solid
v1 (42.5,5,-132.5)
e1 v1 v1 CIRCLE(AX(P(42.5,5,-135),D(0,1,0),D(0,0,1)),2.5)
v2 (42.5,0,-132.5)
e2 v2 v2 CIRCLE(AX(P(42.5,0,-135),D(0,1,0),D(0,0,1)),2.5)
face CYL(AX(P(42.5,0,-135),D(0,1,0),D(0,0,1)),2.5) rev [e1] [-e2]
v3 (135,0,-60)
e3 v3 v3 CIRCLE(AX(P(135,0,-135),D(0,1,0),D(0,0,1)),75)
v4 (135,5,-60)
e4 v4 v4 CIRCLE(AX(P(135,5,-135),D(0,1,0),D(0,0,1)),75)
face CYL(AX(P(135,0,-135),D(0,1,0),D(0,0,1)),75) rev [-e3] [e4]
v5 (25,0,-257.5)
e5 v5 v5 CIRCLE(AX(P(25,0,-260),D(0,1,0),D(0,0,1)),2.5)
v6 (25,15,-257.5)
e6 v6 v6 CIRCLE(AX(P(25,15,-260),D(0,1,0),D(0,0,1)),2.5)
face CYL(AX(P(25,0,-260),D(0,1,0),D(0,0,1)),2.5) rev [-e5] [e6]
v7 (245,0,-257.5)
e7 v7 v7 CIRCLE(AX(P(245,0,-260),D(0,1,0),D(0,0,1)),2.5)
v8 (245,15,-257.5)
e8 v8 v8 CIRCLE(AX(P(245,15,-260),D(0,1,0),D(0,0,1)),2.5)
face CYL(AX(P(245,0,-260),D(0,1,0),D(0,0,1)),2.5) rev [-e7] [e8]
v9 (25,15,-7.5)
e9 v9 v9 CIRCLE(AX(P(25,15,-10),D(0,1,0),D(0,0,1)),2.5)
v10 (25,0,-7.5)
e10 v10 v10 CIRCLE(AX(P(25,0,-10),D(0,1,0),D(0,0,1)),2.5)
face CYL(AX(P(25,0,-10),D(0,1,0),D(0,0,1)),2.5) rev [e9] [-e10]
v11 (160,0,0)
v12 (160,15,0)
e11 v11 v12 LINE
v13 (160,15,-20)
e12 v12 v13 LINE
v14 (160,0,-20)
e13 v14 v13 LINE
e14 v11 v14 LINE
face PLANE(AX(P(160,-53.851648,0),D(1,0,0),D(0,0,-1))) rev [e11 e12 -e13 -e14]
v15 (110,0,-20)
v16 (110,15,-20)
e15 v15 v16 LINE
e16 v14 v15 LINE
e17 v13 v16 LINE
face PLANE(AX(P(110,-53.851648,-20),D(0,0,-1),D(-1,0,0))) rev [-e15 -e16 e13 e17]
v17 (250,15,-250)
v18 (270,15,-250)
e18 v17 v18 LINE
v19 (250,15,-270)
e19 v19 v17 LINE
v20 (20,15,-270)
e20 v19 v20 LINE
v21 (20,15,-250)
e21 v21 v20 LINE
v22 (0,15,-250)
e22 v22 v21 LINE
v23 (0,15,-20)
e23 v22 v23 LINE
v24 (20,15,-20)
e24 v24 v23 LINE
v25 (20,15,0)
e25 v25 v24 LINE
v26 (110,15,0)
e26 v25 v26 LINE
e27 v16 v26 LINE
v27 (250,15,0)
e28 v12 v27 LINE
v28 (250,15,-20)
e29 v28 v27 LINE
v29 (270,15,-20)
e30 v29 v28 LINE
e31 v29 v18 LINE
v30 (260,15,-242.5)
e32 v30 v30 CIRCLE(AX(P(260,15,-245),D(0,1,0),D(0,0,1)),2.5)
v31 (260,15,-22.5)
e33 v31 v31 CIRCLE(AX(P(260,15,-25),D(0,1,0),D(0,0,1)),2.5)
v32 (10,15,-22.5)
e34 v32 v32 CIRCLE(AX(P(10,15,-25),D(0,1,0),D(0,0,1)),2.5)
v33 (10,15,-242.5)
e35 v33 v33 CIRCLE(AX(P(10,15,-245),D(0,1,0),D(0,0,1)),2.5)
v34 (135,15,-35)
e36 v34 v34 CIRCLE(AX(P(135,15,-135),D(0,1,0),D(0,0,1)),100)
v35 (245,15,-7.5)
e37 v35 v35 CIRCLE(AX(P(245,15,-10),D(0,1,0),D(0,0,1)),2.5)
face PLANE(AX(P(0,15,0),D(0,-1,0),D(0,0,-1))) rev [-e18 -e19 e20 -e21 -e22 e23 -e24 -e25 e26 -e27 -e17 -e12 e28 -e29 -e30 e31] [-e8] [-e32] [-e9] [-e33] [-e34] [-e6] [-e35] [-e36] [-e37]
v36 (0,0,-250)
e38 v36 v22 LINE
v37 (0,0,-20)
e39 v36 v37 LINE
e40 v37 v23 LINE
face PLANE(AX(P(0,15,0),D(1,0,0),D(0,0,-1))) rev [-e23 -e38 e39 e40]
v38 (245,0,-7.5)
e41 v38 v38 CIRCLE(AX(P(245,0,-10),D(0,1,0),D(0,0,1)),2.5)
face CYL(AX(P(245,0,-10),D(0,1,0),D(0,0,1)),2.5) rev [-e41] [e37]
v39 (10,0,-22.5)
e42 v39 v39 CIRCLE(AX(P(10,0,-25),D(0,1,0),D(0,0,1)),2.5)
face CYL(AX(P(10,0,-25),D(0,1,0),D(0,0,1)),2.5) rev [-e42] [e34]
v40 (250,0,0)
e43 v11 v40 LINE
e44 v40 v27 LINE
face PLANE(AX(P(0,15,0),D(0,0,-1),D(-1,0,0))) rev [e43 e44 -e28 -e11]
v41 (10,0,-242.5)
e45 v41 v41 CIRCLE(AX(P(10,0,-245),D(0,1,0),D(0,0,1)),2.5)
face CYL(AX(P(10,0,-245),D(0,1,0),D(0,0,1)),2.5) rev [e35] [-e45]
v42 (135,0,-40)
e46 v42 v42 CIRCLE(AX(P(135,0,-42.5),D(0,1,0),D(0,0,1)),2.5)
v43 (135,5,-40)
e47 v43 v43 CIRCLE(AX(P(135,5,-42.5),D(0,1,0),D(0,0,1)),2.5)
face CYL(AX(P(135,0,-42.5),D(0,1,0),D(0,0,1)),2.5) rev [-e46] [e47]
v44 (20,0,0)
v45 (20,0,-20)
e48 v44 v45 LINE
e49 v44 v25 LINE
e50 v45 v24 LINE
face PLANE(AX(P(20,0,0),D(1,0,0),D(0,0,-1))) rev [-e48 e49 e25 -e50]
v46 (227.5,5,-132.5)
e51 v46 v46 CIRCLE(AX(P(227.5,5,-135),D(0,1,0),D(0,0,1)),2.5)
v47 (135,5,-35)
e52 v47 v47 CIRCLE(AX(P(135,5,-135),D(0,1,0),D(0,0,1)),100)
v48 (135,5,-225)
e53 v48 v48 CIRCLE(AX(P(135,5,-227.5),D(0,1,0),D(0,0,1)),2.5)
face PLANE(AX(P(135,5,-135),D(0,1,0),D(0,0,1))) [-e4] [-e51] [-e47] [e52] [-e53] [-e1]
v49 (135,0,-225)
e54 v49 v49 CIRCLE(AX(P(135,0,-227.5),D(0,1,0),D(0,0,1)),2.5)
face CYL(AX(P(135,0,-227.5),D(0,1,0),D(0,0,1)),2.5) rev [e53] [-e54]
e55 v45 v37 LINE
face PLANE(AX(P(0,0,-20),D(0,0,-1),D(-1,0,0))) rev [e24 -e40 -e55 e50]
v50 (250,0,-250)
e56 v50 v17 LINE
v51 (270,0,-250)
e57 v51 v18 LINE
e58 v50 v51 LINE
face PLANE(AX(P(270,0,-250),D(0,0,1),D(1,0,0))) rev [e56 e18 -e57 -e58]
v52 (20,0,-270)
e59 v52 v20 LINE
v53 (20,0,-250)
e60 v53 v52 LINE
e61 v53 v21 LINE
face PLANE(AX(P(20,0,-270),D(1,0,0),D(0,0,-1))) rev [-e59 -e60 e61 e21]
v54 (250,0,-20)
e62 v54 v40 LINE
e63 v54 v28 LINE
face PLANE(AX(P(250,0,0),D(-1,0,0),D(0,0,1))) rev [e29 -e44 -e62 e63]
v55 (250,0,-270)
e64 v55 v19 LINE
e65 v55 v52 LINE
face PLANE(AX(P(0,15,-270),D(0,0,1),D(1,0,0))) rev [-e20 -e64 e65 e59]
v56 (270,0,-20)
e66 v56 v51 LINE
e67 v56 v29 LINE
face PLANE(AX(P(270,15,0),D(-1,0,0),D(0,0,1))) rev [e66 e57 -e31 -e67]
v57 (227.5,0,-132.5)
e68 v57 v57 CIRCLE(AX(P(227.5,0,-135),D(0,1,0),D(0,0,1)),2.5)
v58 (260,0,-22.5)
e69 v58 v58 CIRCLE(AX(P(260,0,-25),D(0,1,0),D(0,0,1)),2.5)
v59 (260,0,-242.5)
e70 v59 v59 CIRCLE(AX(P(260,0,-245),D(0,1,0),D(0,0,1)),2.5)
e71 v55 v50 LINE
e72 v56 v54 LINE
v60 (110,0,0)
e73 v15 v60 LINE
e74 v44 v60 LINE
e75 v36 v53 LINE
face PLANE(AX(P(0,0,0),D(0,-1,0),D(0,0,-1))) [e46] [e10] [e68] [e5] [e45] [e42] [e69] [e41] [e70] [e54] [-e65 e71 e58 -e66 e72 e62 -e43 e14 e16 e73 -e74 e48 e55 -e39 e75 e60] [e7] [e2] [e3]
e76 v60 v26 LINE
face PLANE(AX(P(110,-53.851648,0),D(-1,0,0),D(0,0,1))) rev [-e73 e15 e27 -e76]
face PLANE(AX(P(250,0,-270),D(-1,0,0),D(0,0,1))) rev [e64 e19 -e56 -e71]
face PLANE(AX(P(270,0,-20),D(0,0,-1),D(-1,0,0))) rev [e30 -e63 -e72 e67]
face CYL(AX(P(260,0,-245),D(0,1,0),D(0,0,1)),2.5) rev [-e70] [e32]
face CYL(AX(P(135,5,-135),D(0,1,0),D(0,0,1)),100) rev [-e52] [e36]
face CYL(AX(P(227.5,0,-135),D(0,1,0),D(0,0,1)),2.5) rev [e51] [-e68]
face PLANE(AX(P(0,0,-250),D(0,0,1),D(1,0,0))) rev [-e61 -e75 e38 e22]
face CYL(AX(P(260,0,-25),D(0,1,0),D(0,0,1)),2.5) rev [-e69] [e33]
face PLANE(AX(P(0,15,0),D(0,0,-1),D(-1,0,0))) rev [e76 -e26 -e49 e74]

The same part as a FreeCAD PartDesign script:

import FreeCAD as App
import Part
import Sketcher
Q = App.Units.Quantity

doc = App.newDocument("Part")
body = doc.addObject("PartDesign::Body", "Body")

# Sketch on XZ plane
sketch1 = doc.addObject("Sketcher::SketchObject", "Sketch")
body.addObject(sketch1)
sketch1.AttachmentSupport = (doc.XZ_Plane, [""])
sketch1.MapMode = "FlatFace"
sketch1.addGeometry(Part.LineSegment(App.Vector(0, -270, 0), App.Vector(0, 0, 0)), False)
sketch1.addGeometry(Part.LineSegment(App.Vector(0, 0, 0), App.Vector(270, 0, 0)), False)
sketch1.addGeometry(Part.LineSegment(App.Vector(270, 0, 0), App.Vector(270, -270, 0)), False)
sketch1.addGeometry(Part.LineSegment(App.Vector(270, -270, 0), App.Vector(0, -270, 0)), False)
sketch1.addConstraint(Sketcher.Constraint("Coincident", 0, 2, 1, 1))
sketch1.addConstraint(Sketcher.Constraint("Coincident", 1, 2, 2, 1))
sketch1.addConstraint(Sketcher.Constraint("Coincident", 2, 2, 3, 1))
sketch1.addConstraint(Sketcher.Constraint("Coincident", 3, 2, 0, 1))
sketch1.addConstraint(Sketcher.Constraint("Vertical", 0))
sketch1.addConstraint(Sketcher.Constraint("Horizontal", 1))
sketch1.addConstraint(Sketcher.Constraint("Vertical", 2))
sketch1.addConstraint(Sketcher.Constraint("Horizontal", 3))
sketch1.addConstraint(Sketcher.Constraint("Coincident", 0, 2, -1, 1))
sketch1.addConstraint(Sketcher.Constraint("Equal", 3, 0))
sketch1.addConstraint(Sketcher.Constraint("DistanceX", 1, 1, 1, 2, Q("270 mm")))
pad1 = doc.addObject("PartDesign::Pad", "Pad")
body.addObject(pad1)
pad1.Profile = sketch1
pad1.Length = 15
pad1.Reversed = True

# Sketch on XZ plane
sketch2 = doc.addObject("Sketcher::SketchObject", "Sketch001")
body.addObject(sketch2)
sketch2.AttachmentSupport = (doc.XZ_Plane, [""])
sketch2.MapMode = "FlatFace"
sketch2.AttachmentOffset = App.Placement(App.Vector(0, 0, -15), App.Rotation())
sketch2.addGeometry(Part.LineSegment(App.Vector(0, -270, 0), App.Vector(0, -250, 0)), False)
sketch2.addGeometry(Part.LineSegment(App.Vector(0, -250, 0), App.Vector(20, -250, 0)), False)
sketch2.addGeometry(Part.LineSegment(App.Vector(20, -250, 0), App.Vector(20, -270, 0)), False)
sketch2.addGeometry(Part.LineSegment(App.Vector(20, -270, 0), App.Vector(0, -270, 0)), False)
sketch2.addGeometry(Part.LineSegment(App.Vector(250, -270, 0), App.Vector(250, -250, 0)), False)
sketch2.addGeometry(Part.LineSegment(App.Vector(250, -250, 0), App.Vector(270, -250, 0)), False)
sketch2.addGeometry(Part.LineSegment(App.Vector(270, -250, 0), App.Vector(270, -270, 0)), False)
sketch2.addGeometry(Part.LineSegment(App.Vector(270, -270, 0), App.Vector(250, -270, 0)), False)
sketch2.addGeometry(Part.LineSegment(App.Vector(250, -20, 0), App.Vector(250, 0, 0)), False)
sketch2.addGeometry(Part.LineSegment(App.Vector(250, 0, 0), App.Vector(270, 0, 0)), False)
sketch2.addGeometry(Part.LineSegment(App.Vector(270, 0, 0), App.Vector(270, -20, 0)), False)
sketch2.addGeometry(Part.LineSegment(App.Vector(270, -20, 0), App.Vector(250, -20, 0)), False)
sketch2.addGeometry(Part.LineSegment(App.Vector(0, -20, 0), App.Vector(0, 0, 0)), False)
sketch2.addGeometry(Part.LineSegment(App.Vector(0, 0, 0), App.Vector(20, 0, 0)), False)
sketch2.addGeometry(Part.LineSegment(App.Vector(20, 0, 0), App.Vector(20, -20, 0)), False)
sketch2.addGeometry(Part.LineSegment(App.Vector(20, -20, 0), App.Vector(0, -20, 0)), False)
sketch2.addConstraint(Sketcher.Constraint("Coincident", 0, 2, 1, 1))
sketch2.addConstraint(Sketcher.Constraint("Coincident", 1, 2, 2, 1))
sketch2.addConstraint(Sketcher.Constraint("Coincident", 2, 2, 3, 1))
sketch2.addConstraint(Sketcher.Constraint("Coincident", 3, 2, 0, 1))
sketch2.addConstraint(Sketcher.Constraint("Coincident", 4, 2, 5, 1))
sketch2.addConstraint(Sketcher.Constraint("Coincident", 5, 2, 6, 1))
sketch2.addConstraint(Sketcher.Constraint("Coincident", 6, 2, 7, 1))
sketch2.addConstraint(Sketcher.Constraint("Coincident", 7, 2, 4, 1))
sketch2.addConstraint(Sketcher.Constraint("Coincident", 8, 2, 9, 1))
sketch2.addConstraint(Sketcher.Constraint("Coincident", 9, 2, 10, 1))
sketch2.addConstraint(Sketcher.Constraint("Coincident", 10, 2, 11, 1))
sketch2.addConstraint(Sketcher.Constraint("Coincident", 11, 2, 8, 1))
sketch2.addConstraint(Sketcher.Constraint("Coincident", 12, 2, 13, 1))
sketch2.addConstraint(Sketcher.Constraint("Coincident", 13, 2, 14, 1))
sketch2.addConstraint(Sketcher.Constraint("Coincident", 14, 2, 15, 1))
sketch2.addConstraint(Sketcher.Constraint("Coincident", 15, 2, 12, 1))
sketch2.addConstraint(Sketcher.Constraint("Vertical", 0))
sketch2.addConstraint(Sketcher.Constraint("Horizontal", 1))
sketch2.addConstraint(Sketcher.Constraint("Vertical", 2))
sketch2.addConstraint(Sketcher.Constraint("Horizontal", 3))
sketch2.addConstraint(Sketcher.Constraint("Vertical", 4))
sketch2.addConstraint(Sketcher.Constraint("Horizontal", 5))
sketch2.addConstraint(Sketcher.Constraint("Vertical", 6))
sketch2.addConstraint(Sketcher.Constraint("Horizontal", 7))
sketch2.addConstraint(Sketcher.Constraint("Vertical", 8))
sketch2.addConstraint(Sketcher.Constraint("Horizontal", 9))
sketch2.addConstraint(Sketcher.Constraint("Vertical", 10))
sketch2.addConstraint(Sketcher.Constraint("Horizontal", 11))
sketch2.addConstraint(Sketcher.Constraint("Vertical", 12))
sketch2.addConstraint(Sketcher.Constraint("Horizontal", 13))
sketch2.addConstraint(Sketcher.Constraint("Vertical", 14))
sketch2.addConstraint(Sketcher.Constraint("Horizontal", 15))
sketch2.addConstraint(Sketcher.Constraint("Coincident", 12, 2, -1, 1))
sketch2.addConstraint(Sketcher.Constraint("PointOnObject", 0, 2, -2))
sketch2.addConstraint(Sketcher.Constraint("PointOnObject", 8, 2, -1))
sketch2.addConstraint(Sketcher.Constraint("Horizontal", 1, 2, 4, 2))
sketch2.addConstraint(Sketcher.Constraint("Horizontal", 3, 2, 6, 2))
sketch2.addConstraint(Sketcher.Constraint("Horizontal", 11, 2, 14, 2))
sketch2.addConstraint(Sketcher.Constraint("Vertical", 7, 2, 8, 2))
sketch2.addConstraint(Sketcher.Constraint("Vertical", 6, 2, 9, 2))
sketch2.addConstraint(Sketcher.Constraint("Vertical", 2, 2, 13, 2))
sketch2.addConstraint(Sketcher.Constraint("Equal", 3, 5))
sketch2.addConstraint(Sketcher.Constraint("Equal", 15, 0))
sketch2.addConstraint(Sketcher.Constraint("Equal", 6, 8))
sketch2.addConstraint(Sketcher.Constraint("DistanceX", 1, 1, 1, 2, Q("20 mm")))
sketch2.addConstraint(Sketcher.Constraint("DistanceY", 0, 2, -1, 1, Q("250 mm")))
sketch2.addConstraint(Sketcher.Constraint("DistanceX", -1, 1, 4, 2, Q("250 mm")))
pocket1 = doc.addObject("PartDesign::Pocket", "Pocket")
body.addObject(pocket1)
pocket1.Profile = sketch2
pocket1.Type = "ThroughAll"
pocket1.Reversed = True

# Sketch on XZ plane
sketch3 = doc.addObject("Sketcher::SketchObject", "Sketch002")
body.addObject(sketch3)
sketch3.AttachmentSupport = (doc.XZ_Plane, [""])
sketch3.MapMode = "FlatFace"
sketch3.AttachmentOffset = App.Placement(App.Vector(0, 0, -15), App.Rotation())
sketch3.addGeometry(Part.Circle(App.Vector(10, -245, 0), App.Vector(0, 0, 1), 2.5), False)
sketch3.addGeometry(Part.Circle(App.Vector(10, -25, 0), App.Vector(0, 0, 1), 2.5), False)
sketch3.addGeometry(Part.Circle(App.Vector(25, -10, 0), App.Vector(0, 0, 1), 2.5), False)
sketch3.addGeometry(Part.Circle(App.Vector(245, -10, 0), App.Vector(0, 0, 1), 2.5), False)
sketch3.addGeometry(Part.Circle(App.Vector(260, -25, 0), App.Vector(0, 0, 1), 2.5), False)
sketch3.addGeometry(Part.Circle(App.Vector(260, -245, 0), App.Vector(0, 0, 1), 2.5), False)
sketch3.addGeometry(Part.Circle(App.Vector(245, -260, 0), App.Vector(0, 0, 1), 2.5), False)
sketch3.addGeometry(Part.Circle(App.Vector(25, -260, 0), App.Vector(0, 0, 1), 2.5), False)
sketch3.addConstraint(Sketcher.Constraint("Equal", 0, 1))
sketch3.addConstraint(Sketcher.Constraint("Equal", 1, 2))
sketch3.addConstraint(Sketcher.Constraint("Equal", 2, 3))
sketch3.addConstraint(Sketcher.Constraint("Equal", 3, 4))
sketch3.addConstraint(Sketcher.Constraint("Equal", 4, 5))
sketch3.addConstraint(Sketcher.Constraint("Equal", 5, 6))
sketch3.addConstraint(Sketcher.Constraint("Equal", 6, 7))
sketch3.addConstraint(Sketcher.Constraint("Horizontal", 2, 3, 3, 3))
sketch3.addConstraint(Sketcher.Constraint("Horizontal", 1, 3, 4, 3))
sketch3.addConstraint(Sketcher.Constraint("Horizontal", 0, 3, 5, 3))
sketch3.addConstraint(Sketcher.Constraint("Horizontal", 6, 3, 7, 3))
sketch3.addConstraint(Sketcher.Constraint("Vertical", 0, 3, 1, 3))
sketch3.addConstraint(Sketcher.Constraint("Vertical", 4, 3, 5, 3))
sketch3.addConstraint(Sketcher.Constraint("Vertical", 3, 3, 6, 3))
sketch3.addConstraint(Sketcher.Constraint("Vertical", 2, 3, 7, 3))
sketch3.addConstraint(Sketcher.Constraint("Diameter", 0, Q("5 mm")))
sketch3.addConstraint(Sketcher.Constraint("DistanceX", -1, 1, 0, 3, Q("10 mm")))
sketch3.addConstraint(Sketcher.Constraint("DistanceY", 0, 3, -1, 1, Q("245 mm")))
sketch3.addConstraint(Sketcher.Constraint("DistanceY", 1, 3, -1, 1, Q("25 mm")))
sketch3.addConstraint(Sketcher.Constraint("DistanceX", -1, 1, 2, 3, Q("25 mm")))
sketch3.addConstraint(Sketcher.Constraint("DistanceY", 2, 3, -1, 1, Q("10 mm")))
sketch3.addConstraint(Sketcher.Constraint("DistanceX", -1, 1, 3, 3, Q("245 mm")))
sketch3.addConstraint(Sketcher.Constraint("DistanceX", -1, 1, 4, 3, Q("260 mm")))
sketch3.addConstraint(Sketcher.Constraint("DistanceY", 6, 3, -1, 1, Q("260 mm")))
pocket2 = doc.addObject("PartDesign::Pocket", "Pocket001")
body.addObject(pocket2)
pocket2.Profile = sketch3
pocket2.Type = "ThroughAll"
pocket2.Reversed = True

# Sketch on XZ plane
sketch4 = doc.addObject("Sketcher::SketchObject", "Sketch003")
body.addObject(sketch4)
sketch4.AttachmentSupport = (doc.XZ_Plane, [""])
sketch4.MapMode = "FlatFace"
sketch4.AttachmentOffset = App.Placement(App.Vector(0, 0, -15), App.Rotation())
sketch4.addGeometry(Part.Circle(App.Vector(135, -135, 0), App.Vector(0, 0, 1), 100), False)
sketch4.addConstraint(Sketcher.Constraint("Diameter", 0, Q("200 mm")))
sketch4.addConstraint(Sketcher.Constraint("DistanceX", -1, 1, 0, 3, Q("135 mm")))
sketch4.addConstraint(Sketcher.Constraint("DistanceY", 0, 3, -1, 1, Q("135 mm")))
pocket3 = doc.addObject("PartDesign::Pocket", "Pocket002")
body.addObject(pocket3)
pocket3.Profile = sketch4
pocket3.Length = 10
pocket3.Reversed = True

# Sketch on XZ plane
sketch5 = doc.addObject("Sketcher::SketchObject", "Sketch004")
body.addObject(sketch5)
sketch5.AttachmentSupport = (doc.XZ_Plane, [""])
sketch5.MapMode = "FlatFace"
sketch5.AttachmentOffset = App.Placement(App.Vector(0, 0, -5), App.Rotation())
sketch5.addGeometry(Part.Circle(App.Vector(135, -135, 0), App.Vector(0, 0, 1), 75), False)
sketch5.addGeometry(Part.Circle(App.Vector(135, -227.5, 0), App.Vector(0, 0, 1), 2.5), False)
sketch5.addGeometry(Part.Circle(App.Vector(227.5, -135, 0), App.Vector(0, 0, 1), 2.5), False)
sketch5.addGeometry(Part.Circle(App.Vector(135, -42.5, 0), App.Vector(0, 0, 1), 2.5), False)
sketch5.addGeometry(Part.Circle(App.Vector(42.5, -135, 0), App.Vector(0, 0, 1), 2.5), False)
sketch5.addConstraint(Sketcher.Constraint("Equal", 1, 2))
sketch5.addConstraint(Sketcher.Constraint("Equal", 2, 3))
sketch5.addConstraint(Sketcher.Constraint("Equal", 3, 4))
sketch5.addConstraint(Sketcher.Constraint("Horizontal", 0, 3, 2, 3))
sketch5.addConstraint(Sketcher.Constraint("Horizontal", 2, 3, 4, 3))
sketch5.addConstraint(Sketcher.Constraint("Vertical", 0, 3, 1, 3))
sketch5.addConstraint(Sketcher.Constraint("Vertical", 1, 3, 3, 3))
sketch5.addConstraint(Sketcher.Constraint("Diameter", 0, Q("150 mm")))
sketch5.addConstraint(Sketcher.Constraint("Diameter", 1, Q("5 mm")))
sketch5.addConstraint(Sketcher.Constraint("DistanceX", -1, 1, 0, 3, Q("135 mm")))
sketch5.addConstraint(Sketcher.Constraint("DistanceY", 0, 3, -1, 1, Q("135 mm")))
sketch5.addConstraint(Sketcher.Constraint("DistanceY", 1, 3, 3, 3, Q("185 mm")))
sketch5.addConstraint(Sketcher.Constraint("DistanceX", 4, 3, 2, 3, Q("185 mm")))
sketch5.addConstraint(Sketcher.Constraint("DistanceY", 1, 3, -1, 1, Q("227.5 mm")))
sketch5.addConstraint(Sketcher.Constraint("DistanceX", -1, 1, 2, 3, Q("227.5 mm")))
pocket4 = doc.addObject("PartDesign::Pocket", "Pocket003")
body.addObject(pocket4)
pocket4.Profile = sketch5
pocket4.Type = "ThroughAll"
pocket4.Reversed = True

# Sketch on XZ plane
sketch6 = doc.addObject("Sketcher::SketchObject", "Sketch005")
body.addObject(sketch6)
sketch6.AttachmentSupport = (doc.XZ_Plane, [""])
sketch6.MapMode = "FlatFace"
sketch6.AttachmentOffset = App.Placement(App.Vector(0, 0, -15), App.Rotation())
sketch6.addGeometry(Part.LineSegment(App.Vector(110, -20, 0), App.Vector(110, 0, 0)), False)
sketch6.addGeometry(Part.LineSegment(App.Vector(110, 0, 0), App.Vector(160, 0, 0)), False)
sketch6.addGeometry(Part.LineSegment(App.Vector(160, 0, 0), App.Vector(160, -20, 0)), False)
sketch6.addGeometry(Part.LineSegment(App.Vector(160, -20, 0), App.Vector(110, -20, 0)), False)
sketch6.addConstraint(Sketcher.Constraint("Coincident", 0, 2, 1, 1))
sketch6.addConstraint(Sketcher.Constraint("Coincident", 1, 2, 2, 1))
sketch6.addConstraint(Sketcher.Constraint("Coincident", 2, 2, 3, 1))
sketch6.addConstraint(Sketcher.Constraint("Coincident", 3, 2, 0, 1))
sketch6.addConstraint(Sketcher.Constraint("Vertical", 0))
sketch6.addConstraint(Sketcher.Constraint("Horizontal", 1))
sketch6.addConstraint(Sketcher.Constraint("Vertical", 2))
sketch6.addConstraint(Sketcher.Constraint("Horizontal", 3))
sketch6.addConstraint(Sketcher.Constraint("PointOnObject", 0, 2, -1))
sketch6.addConstraint(Sketcher.Constraint("DistanceX", 1, 1, 1, 2, Q("50 mm")))
sketch6.addConstraint(Sketcher.Constraint("DistanceY", 0, 1, 0, 2, Q("20 mm")))
sketch6.addConstraint(Sketcher.Constraint("DistanceX", -1, 1, 0, 2, Q("110 mm")))
pocket5 = doc.addObject("PartDesign::Pocket", "Pocket004")
body.addObject(pocket5)
pocket5.Profile = sketch6
pocket5.Length = 15
pocket5.Reversed = True

doc.recompute()
